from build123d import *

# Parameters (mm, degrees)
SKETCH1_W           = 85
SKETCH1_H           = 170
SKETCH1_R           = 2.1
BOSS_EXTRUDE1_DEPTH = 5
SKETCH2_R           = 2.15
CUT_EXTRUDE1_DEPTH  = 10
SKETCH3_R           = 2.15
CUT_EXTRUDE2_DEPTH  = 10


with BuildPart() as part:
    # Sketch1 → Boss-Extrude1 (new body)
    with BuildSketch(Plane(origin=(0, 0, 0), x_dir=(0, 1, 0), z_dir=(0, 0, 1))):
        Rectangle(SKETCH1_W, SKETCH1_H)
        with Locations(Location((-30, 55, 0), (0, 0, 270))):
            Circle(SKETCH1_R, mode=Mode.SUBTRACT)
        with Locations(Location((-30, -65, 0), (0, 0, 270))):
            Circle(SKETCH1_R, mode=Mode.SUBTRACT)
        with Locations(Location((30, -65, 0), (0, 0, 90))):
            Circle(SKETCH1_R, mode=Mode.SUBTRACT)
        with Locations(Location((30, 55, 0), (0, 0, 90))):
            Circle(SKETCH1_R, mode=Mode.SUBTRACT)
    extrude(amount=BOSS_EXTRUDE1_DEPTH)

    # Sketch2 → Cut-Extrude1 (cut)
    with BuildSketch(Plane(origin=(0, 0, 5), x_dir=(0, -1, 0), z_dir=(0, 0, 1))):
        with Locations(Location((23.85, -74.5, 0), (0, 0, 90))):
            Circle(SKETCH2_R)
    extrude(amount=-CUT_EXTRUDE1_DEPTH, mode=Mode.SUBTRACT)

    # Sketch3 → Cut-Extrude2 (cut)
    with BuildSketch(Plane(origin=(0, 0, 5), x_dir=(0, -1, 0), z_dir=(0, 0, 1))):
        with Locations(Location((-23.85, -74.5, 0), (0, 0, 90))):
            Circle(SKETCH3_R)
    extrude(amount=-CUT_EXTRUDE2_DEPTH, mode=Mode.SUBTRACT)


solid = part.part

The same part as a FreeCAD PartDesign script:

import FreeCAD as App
import Part
import Sketcher
Q = App.Units.Quantity


def add_polygon(sketch, points):
    """Adds a closed chain of lines whose ends are joined by coincident constraints."""
    first, n = sketch.GeometryCount, len(points)
    for a, b in zip(points, points[1:] + points[:1]):
        sketch.addGeometry(Part.LineSegment(App.Vector(*a, 0), App.Vector(*b, 0)), False)
    for i in range(n):
        sketch.addConstraint(Sketcher.Constraint("Coincident", first + i, 2, first + (i + 1) % n, 1))

doc = App.newDocument("Part")
body = doc.addObject("PartDesign::Body", "Body")

# Sketch on XY plane
sketch1 = doc.addObject("Sketcher::SketchObject", "Sketch")
body.addObject(sketch1)
sketch1.AttachmentSupport = (doc.XY_Plane, [""])
sketch1.MapMode = "FlatFace"
add_polygon(sketch1, [(-85, -42.5), (85, -42.5), (85, 42.5), (-85, 42.5)])  # lines 0-3
sketch1.addGeometry(Part.Circle(App.Vector(65, -30, 0), App.Vector(0, 0, 1), 2.1), False)  # 4
sketch1.addGeometry(Part.Circle(App.Vector(65, 30, 0), App.Vector(0, 0, 1), 2.1), False)  # 5
sketch1.addGeometry(Part.Circle(App.Vector(-55, -30, 0), App.Vector(0, 0, 1), 2.1), False)  # 6
sketch1.addGeometry(Part.Circle(App.Vector(-55, 30, 0), App.Vector(0, 0, 1), 2.1), False)  # 7
sketch1.addConstraint(Sketcher.Constraint("Horizontal", 0))
sketch1.addConstraint(Sketcher.Constraint("Vertical", 1))
sketch1.addConstraint(Sketcher.Constraint("Horizontal", 2))
sketch1.addConstraint(Sketcher.Constraint("Vertical", 3))
sketch1.addConstraint(Sketcher.Constraint("Equal", 4, 5))
sketch1.addConstraint(Sketcher.Constraint("Equal", 5, 6))
sketch1.addConstraint(Sketcher.Constraint("Equal", 6, 7))
sketch1.addConstraint(Sketcher.Constraint("Symmetric", 0, 2, 2, 2, -1, 1))
sketch1.addConstraint(Sketcher.Constraint("Symmetric", 4, 3, 5, 3, -1))
sketch1.addConstraint(Sketcher.Constraint("Symmetric", 6, 3, 7, 3, -1))
sketch1.addConstraint(Sketcher.Constraint("Horizontal", 4, 3, 6, 3))
sketch1.addConstraint(Sketcher.Constraint("Diameter", 4, Q("4.2 mm")))
sketch1.addConstraint(Sketcher.Constraint("DistanceX", 0, 1, 0, 2, Q("170 mm")))
sketch1.addConstraint(Sketcher.Constraint("DistanceY", 1, 1, 1, 2, Q("85 mm")))
sketch1.addConstraint(Sketcher.Constraint("DistanceX", -1, 1, 4, 3, Q("65 mm")))
sketch1.addConstraint(Sketcher.Constraint("DistanceY", 4, 3, -1, 1, Q("30 mm")))
sketch1.addConstraint(Sketcher.Constraint("DistanceX", 6, 3, -1, 1, Q("55 mm")))
pad1 = doc.addObject("PartDesign::Pad", "Pad")
body.addObject(pad1)
pad1.Profile = sketch1
pad1.Length = 5

# Sketch on XY plane
sketch2 = doc.addObject("Sketcher::SketchObject", "Sketch001")
body.addObject(sketch2)
sketch2.AttachmentSupport = (doc.XY_Plane, [""])
sketch2.MapMode = "FlatFace"
sketch2.AttachmentOffset = App.Placement(App.Vector(0, 0, 5), App.Rotation())
sketch2.addGeometry(Part.Circle(App.Vector(-74.5, -23.9, 0), App.Vector(0, 0, 1), 2.1), False)
sketch2.addConstraint(Sketcher.Constraint("Diameter", 0, Q("4.3 mm")))
sketch2.addConstraint(Sketcher.Constraint("DistanceX", 0, 3, -1, 1, Q("74.5 mm")))
sketch2.addConstraint(Sketcher.Constraint("DistanceY", 0, 3, -1, 1, Q("23.85 mm")))
pocket1 = doc.addObject("PartDesign::Pocket", "Pocket")
body.addObject(pocket1)
pocket1.Profile = sketch2
pocket1.Length = 10

# Sketch on XY plane
sketch3 = doc.addObject("Sketcher::SketchObject", "Sketch002")
body.addObject(sketch3)
sketch3.AttachmentSupport = (doc.XY_Plane, [""])
sketch3.MapMode = "FlatFace"
sketch3.AttachmentOffset = App.Placement(App.Vector(0, 0, 5), App.Rotation())
sketch3.addGeometry(Part.Circle(App.Vector(-74.5, 23.9, 0), App.Vector(0, 0, 1), 2.1), False)
sketch3.addConstraint(Sketcher.Constraint("Diameter", 0, Q("4.3 mm")))
sketch3.addConstraint(Sketcher.Constraint("DistanceX", 0, 3, -1, 1, Q("74.5 mm")))
sketch3.addConstraint(Sketcher.Constraint("DistanceY", -1, 1, 0, 3, Q("23.85 mm")))
pocket2 = doc.addObject("PartDesign::Pocket", "Pocket001")
body.addObject(pocket2)
pocket2.Profile = sketch3
pocket2.Length = 10

doc.recompute()
